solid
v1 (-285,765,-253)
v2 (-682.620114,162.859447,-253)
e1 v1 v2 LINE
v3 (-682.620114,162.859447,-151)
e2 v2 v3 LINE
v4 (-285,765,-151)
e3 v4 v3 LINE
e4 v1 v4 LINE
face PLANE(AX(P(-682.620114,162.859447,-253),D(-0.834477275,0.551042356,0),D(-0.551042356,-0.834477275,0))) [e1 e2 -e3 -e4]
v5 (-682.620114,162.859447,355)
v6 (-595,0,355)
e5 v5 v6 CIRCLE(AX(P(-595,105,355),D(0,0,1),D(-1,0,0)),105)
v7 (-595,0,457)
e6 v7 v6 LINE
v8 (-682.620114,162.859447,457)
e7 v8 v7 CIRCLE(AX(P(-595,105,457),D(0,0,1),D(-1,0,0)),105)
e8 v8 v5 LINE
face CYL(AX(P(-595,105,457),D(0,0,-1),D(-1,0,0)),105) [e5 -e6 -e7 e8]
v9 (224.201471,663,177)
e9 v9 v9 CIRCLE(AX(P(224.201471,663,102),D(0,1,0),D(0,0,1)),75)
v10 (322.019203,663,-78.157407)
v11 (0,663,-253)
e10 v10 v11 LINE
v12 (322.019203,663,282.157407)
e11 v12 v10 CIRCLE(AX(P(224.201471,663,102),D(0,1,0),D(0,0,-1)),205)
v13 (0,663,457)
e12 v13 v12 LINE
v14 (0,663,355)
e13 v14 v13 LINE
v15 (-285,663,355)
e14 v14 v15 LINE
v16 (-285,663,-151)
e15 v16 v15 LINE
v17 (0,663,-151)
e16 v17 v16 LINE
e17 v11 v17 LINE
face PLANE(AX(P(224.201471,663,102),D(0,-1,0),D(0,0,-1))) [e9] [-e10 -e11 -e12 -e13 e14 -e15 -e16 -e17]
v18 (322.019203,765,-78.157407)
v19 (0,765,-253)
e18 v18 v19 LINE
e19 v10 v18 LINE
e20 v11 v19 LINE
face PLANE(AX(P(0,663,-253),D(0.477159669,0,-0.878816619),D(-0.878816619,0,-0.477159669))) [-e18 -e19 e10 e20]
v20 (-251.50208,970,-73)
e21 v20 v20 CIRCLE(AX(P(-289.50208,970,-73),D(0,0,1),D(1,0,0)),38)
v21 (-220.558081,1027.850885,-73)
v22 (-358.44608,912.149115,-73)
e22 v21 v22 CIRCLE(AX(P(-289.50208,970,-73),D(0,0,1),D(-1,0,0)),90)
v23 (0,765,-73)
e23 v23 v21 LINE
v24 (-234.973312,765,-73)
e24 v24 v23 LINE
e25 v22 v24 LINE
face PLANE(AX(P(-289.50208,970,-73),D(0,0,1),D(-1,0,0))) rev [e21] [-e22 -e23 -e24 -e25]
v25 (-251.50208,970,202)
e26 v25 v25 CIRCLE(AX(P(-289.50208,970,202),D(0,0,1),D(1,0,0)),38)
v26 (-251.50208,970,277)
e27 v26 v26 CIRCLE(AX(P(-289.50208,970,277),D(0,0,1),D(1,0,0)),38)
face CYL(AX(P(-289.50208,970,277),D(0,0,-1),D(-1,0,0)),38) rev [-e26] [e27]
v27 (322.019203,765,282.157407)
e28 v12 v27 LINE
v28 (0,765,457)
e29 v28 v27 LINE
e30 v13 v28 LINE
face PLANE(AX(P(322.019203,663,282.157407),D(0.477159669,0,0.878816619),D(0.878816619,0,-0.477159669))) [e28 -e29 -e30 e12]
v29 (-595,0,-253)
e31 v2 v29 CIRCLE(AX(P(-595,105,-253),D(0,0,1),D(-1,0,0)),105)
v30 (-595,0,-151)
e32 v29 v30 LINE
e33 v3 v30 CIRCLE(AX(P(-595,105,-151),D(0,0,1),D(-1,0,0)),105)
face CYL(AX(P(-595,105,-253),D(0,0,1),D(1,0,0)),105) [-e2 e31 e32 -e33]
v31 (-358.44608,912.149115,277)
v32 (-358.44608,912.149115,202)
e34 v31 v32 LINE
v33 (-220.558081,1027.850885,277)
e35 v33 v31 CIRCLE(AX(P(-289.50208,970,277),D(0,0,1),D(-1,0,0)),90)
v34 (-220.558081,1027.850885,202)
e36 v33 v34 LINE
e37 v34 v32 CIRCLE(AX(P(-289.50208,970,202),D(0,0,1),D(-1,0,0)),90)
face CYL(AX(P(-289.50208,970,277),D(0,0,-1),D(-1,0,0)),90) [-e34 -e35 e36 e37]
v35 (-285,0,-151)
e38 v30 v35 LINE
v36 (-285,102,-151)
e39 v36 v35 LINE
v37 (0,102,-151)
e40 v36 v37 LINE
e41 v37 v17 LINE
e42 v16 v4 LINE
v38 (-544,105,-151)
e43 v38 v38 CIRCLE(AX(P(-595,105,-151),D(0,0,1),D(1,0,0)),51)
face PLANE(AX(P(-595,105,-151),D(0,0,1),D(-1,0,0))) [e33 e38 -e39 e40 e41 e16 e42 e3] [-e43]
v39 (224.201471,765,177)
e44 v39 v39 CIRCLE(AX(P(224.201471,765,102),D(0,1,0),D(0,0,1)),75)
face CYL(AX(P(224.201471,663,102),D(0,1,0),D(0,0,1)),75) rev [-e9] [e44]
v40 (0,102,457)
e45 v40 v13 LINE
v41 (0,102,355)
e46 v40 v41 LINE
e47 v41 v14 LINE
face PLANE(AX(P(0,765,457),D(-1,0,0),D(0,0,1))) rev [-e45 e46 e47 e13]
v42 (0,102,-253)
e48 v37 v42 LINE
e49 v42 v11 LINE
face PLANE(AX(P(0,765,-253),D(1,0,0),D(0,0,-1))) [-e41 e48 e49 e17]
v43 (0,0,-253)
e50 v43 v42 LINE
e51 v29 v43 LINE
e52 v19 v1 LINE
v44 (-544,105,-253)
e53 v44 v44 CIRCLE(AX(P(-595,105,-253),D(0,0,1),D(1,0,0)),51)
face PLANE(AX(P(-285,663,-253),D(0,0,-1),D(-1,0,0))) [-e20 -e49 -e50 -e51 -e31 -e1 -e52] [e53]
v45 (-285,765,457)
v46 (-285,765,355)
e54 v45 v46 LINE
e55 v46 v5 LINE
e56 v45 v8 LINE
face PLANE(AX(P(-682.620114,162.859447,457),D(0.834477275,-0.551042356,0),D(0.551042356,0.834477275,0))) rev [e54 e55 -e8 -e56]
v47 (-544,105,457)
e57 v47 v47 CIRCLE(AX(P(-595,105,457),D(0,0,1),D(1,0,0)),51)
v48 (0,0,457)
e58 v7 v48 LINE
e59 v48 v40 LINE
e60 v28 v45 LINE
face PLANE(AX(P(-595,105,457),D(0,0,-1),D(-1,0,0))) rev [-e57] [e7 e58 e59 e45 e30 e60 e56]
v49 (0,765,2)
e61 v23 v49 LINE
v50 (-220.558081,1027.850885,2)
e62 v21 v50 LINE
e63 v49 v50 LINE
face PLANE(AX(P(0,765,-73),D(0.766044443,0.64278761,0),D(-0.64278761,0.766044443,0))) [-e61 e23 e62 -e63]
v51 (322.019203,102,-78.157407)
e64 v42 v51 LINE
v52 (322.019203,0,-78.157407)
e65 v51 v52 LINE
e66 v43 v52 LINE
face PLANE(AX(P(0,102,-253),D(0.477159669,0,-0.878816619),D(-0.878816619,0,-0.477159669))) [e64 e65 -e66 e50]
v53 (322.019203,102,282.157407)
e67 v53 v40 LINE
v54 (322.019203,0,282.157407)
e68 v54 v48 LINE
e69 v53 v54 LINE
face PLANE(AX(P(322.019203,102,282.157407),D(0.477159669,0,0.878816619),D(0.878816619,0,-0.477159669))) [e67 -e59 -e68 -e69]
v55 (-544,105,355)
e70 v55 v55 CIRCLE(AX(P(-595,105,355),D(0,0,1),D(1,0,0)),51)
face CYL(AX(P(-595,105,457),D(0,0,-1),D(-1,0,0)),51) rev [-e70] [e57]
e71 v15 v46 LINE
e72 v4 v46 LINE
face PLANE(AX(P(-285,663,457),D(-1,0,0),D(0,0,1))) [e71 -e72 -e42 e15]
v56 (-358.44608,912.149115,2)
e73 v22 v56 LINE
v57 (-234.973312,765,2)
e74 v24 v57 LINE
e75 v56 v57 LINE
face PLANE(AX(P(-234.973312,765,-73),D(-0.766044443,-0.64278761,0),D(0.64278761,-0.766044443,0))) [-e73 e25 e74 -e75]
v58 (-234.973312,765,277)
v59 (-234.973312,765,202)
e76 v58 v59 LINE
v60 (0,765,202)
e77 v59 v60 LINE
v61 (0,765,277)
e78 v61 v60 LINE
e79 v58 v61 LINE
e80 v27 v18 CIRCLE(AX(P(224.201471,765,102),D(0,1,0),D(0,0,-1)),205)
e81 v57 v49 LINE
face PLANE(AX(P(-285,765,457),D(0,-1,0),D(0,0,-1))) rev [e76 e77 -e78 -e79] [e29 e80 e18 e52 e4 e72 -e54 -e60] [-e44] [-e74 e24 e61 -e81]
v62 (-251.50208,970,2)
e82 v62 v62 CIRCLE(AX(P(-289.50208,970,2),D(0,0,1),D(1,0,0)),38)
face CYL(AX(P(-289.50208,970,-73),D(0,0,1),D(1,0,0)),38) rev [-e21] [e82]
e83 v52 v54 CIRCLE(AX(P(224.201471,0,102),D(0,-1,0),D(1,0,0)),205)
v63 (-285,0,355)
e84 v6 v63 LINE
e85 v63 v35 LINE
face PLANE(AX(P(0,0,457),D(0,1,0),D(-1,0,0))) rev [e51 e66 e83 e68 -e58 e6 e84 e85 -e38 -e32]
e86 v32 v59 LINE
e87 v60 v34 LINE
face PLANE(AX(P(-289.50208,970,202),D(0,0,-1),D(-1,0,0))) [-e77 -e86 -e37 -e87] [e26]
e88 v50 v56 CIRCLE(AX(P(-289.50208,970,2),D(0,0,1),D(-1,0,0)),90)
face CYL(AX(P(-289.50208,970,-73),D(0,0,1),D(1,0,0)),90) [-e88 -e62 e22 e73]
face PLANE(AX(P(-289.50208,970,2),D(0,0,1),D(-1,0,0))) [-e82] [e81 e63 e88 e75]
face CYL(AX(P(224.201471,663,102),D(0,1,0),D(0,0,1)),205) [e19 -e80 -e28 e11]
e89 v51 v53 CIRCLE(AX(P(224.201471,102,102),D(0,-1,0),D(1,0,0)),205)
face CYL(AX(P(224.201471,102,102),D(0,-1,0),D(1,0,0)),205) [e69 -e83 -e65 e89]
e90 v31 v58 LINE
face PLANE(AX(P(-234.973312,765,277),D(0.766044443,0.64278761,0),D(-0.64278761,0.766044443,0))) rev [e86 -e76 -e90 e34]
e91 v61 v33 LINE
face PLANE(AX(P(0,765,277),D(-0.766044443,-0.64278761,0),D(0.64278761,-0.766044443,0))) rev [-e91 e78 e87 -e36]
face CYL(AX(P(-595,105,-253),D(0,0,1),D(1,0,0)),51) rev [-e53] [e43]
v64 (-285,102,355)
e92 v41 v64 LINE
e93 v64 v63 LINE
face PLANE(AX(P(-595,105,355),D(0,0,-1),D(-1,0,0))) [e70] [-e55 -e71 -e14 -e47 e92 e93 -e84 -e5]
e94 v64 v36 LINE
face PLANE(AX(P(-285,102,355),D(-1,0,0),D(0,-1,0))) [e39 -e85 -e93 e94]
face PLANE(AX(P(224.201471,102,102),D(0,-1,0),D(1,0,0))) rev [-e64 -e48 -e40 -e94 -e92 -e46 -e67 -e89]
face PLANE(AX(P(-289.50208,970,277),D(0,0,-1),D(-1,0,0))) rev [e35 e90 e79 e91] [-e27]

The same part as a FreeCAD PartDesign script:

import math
import FreeCAD as App
import Part
import Sketcher
from FreeCAD import Vector
Q = App.Units.Quantity

doc = App.newDocument("Part")
params = doc.addObject("Spreadsheet::Sheet", "Params")
for row, (alias, value) in enumerate([
    ("sketch1_diameter", "102 mm"),
    ("sketch1_radius", "105 mm"),
    ("sketch1_width", "285 mm"),
    ("sketch1_width2", "595 mm"),
    ("sketch1_height", "765 mm"),
    ("pad1_length", "102 mm"),
    ("sketch2_diameter", "150 mm"),
    ("sketch2_radius", "205 mm"),
    ("sketch2_width", "285 mm"),
    ("sketch2_height", "710 mm"),
    ("pad2_length", "102 mm"),
    ("sketch3_radius", "205 mm"),
    ("sketch3_width", "285 mm"),
    ("sketch3_height", "102 mm"),
    ("sketch3_height2", "506 mm"),
    ("pad3_length", "102 mm"),
    ("sketch4_diameter", "76 mm"),
    ("sketch4_radius", "90 mm"),
    ("pad4_length", "75 mm"),
], start=1):
    params.set(f"A{row}", alias)
    params.set(f"B{row}", "=" + value)
    params.setAlias(f"B{row}", alias)

body = doc.addObject("PartDesign::Body", "Body")

# Sketch on XY plane
sketch1 = body.newObject("Sketcher::SketchObject", "Sketch")
sketch1.AttachmentSupport = (doc.getObject("XY_Plane"), [""])
sketch1.MapMode = "FlatFace"
sketch1.AttachmentOffset = App.Placement(Vector(0, 0, 355), App.Rotation())
sketch1.addGeometry([
    Part.LineSegment(Vector(0, 765, 0), Vector(-285, 765, 0)),  # 0
    Part.LineSegment(Vector(-285, 765, 0), Vector(-682.620114, 162.859447, 0)),  # 1
    Part.ArcOfCircle(Part.Circle(Vector(-595, 105, 0), Vector(0, 0, 1), 105), math.radians(146.561448), math.radians(270)),  # 2
    Part.LineSegment(Vector(-595, 0, 0), Vector(0, 0, 0)),  # 3
    Part.LineSegment(Vector(0, 0, 0), Vector(0, 765, 0)),  # 4
    Part.Circle(Vector(-595, 105, 0), Vector(0, 0, 1), 51),  # 5
], False)
sketch1.addConstraint([
    Sketcher.Constraint("Coincident", 0, 2, 1, 1),
    Sketcher.Constraint("Tangent", 1, 2, 2, 1),
    Sketcher.Constraint("Tangent", 2, 2, 3, 1),
    Sketcher.Constraint("Coincident", 3, 2, 4, 1),
    Sketcher.Constraint("Coincident", 4, 2, 0, 1),
    Sketcher.Constraint("Horizontal", 0),
    Sketcher.Constraint("Horizontal", 3),
    Sketcher.Constraint("Vertical", 4),
    Sketcher.Constraint("Coincident", 3, 2, -1, 1),
    Sketcher.Constraint("Coincident", 5, 3, 2, 3),
    Sketcher.Constraint("Diameter", 5, Q("102 mm")),
    Sketcher.Constraint("Radius", 2, Q("105 mm")),
    Sketcher.Constraint("DistanceX", 0, 2, 0, 1, Q("285 mm")),
    Sketcher.Constraint("DistanceX", 3, 1, 3, 2, Q("595 mm")),
    Sketcher.Constraint("DistanceY", 4, 1, 4, 2, Q("765 mm")),
])
sketch1.setExpression("Constraints[10]", "Params.sketch1_diameter")
sketch1.setExpression("Constraints[11]", "Params.sketch1_radius")
sketch1.setExpression("Constraints[12]", "Params.sketch1_width")
sketch1.setExpression("Constraints[13]", "Params.sketch1_width2")
sketch1.setExpression("Constraints[14]", "Params.sketch1_height")
pad1 = body.newObject("PartDesign::Pad", "Pad")
pad1.Profile = sketch1
pad1.setExpression("Length", "Params.pad1_length")

# Sketch on XZ plane
sketch2 = body.newObject("Sketcher::SketchObject", "Sketch001")
sketch2.AttachmentSupport = (doc.getObject("XZ_Plane"), [""])
sketch2.MapMode = "FlatFace"
sketch2.AttachmentOffset = App.Placement(Vector(0, 0, -765), App.Rotation())
sketch2.addGeometry([
    Part.LineSegment(Vector(-285, 457, 0), Vector(0, 457, 0)),  # 0
    Part.LineSegment(Vector(0, 457, 0), Vector(322.019203, 282.157407, 0)),  # 1
    Part.ArcOfCircle(Part.Circle(Vector(224.201471, 102, 0), Vector(0, 0, 1), 205), math.radians(-61.499941), math.radians(61.499941)),  # 2
    Part.LineSegment(Vector(322.019203, -78.157407, 0), Vector(0, -253, 0)),  # 3
    Part.LineSegment(Vector(0, -253, 0), Vector(-285, -253, 0)),  # 4
    Part.LineSegment(Vector(-285, -253, 0), Vector(-285, 457, 0)),  # 5
    Part.Circle(Vector(224.201471, 102, 0), Vector(0, 0, 1), 75),  # 6
], False)
sketch2.addConstraint([
    Sketcher.Constraint("Coincident", 0, 2, 1, 1),
    Sketcher.Constraint("Tangent", 1, 2, 2, 2),
    Sketcher.Constraint("Tangent", 2, 1, 3, 1),
    Sketcher.Constraint("Coincident", 3, 2, 4, 1),
    Sketcher.Constraint("Coincident", 4, 2, 5, 1),
    Sketcher.Constraint("Coincident", 5, 2, 0, 1),
    Sketcher.Constraint("Horizontal", 0),
    Sketcher.Constraint("Horizontal", 4),
    Sketcher.Constraint("Vertical", 5),
    Sketcher.Constraint("Coincident", 6, 3, 2, 3),
    Sketcher.Constraint("PointOnObject", 0, 2, -2),
    Sketcher.Constraint("PointOnObject", 3, 2, -2),
    Sketcher.Constraint("Vertical", 1, 2, 2, 1),
    Sketcher.Constraint("Diameter", 6, Q("150 mm")),
    Sketcher.Constraint("Radius", 2, Q("205 mm")),
    Sketcher.Constraint("DistanceX", 0, 1, 0, 2, Q("285 mm")),
    Sketcher.Constraint("DistanceY", 5, 1, 5, 2, Q("710 mm")),
    Sketcher.Constraint("DistanceY", -1, 1, 2, 3, Q("102 mm")),
    Sketcher.Constraint("Distance", 1, Q("366.423661 mm")),
])
sketch2.setExpression("Constraints[13]", "Params.sketch2_diameter")
sketch2.setExpression("Constraints[14]", "Params.sketch2_radius")
sketch2.setExpression("Constraints[15]", "Params.sketch2_width")
sketch2.setExpression("Constraints[16]", "Params.sketch2_height")
pad2 = body.newObject("PartDesign::Pad", "Pad001")
pad2.Profile = sketch2
pad2.setExpression("Length", "Params.pad2_length")
doc.recompute()

datumplane = body.newObject("PartDesign::Plane", "DatumPlane")
datumplane.AttachmentSupport = (doc.getObject("XY_Plane"), [""])
datumplane.MapMode = "FlatFace"
datumplane.AttachmentOffset = App.Placement(Vector(0, 0, 102), App.Rotation())
mirrored = body.newObject("PartDesign::Mirrored", "Mirrored")
mirrored.Originals = [pad1]
mirrored.MirrorPlane = (datumplane, [""])
body.Tip = mirrored

# Sketch on XZ plane
sketch3 = body.newObject("Sketcher::SketchObject", "Sketch002")
sketch3.AttachmentSupport = (doc.getObject("XZ_Plane"), [""])
sketch3.MapMode = "FlatFace"
sketch3.addGeometry([
    Part.LineSegment(Vector(0, -151, 0), Vector(0, -253, 0)),  # 0
    Part.LineSegment(Vector(0, -253, 0), Vector(322.019203, -78.157407, 0)),  # 1
    Part.ArcOfCircle(Part.Circle(Vector(224.201471, 102, 0), Vector(0, 0, 1), 205), math.radians(-61.499941), math.radians(61.499941)),  # 2
    Part.LineSegment(Vector(322.019203, 282.157407, 0), Vector(0, 457, 0)),  # 3
    Part.LineSegment(Vector(0, 457, 0), Vector(0, 355, 0)),  # 4
    Part.LineSegment(Vector(0, 355, 0), Vector(-285, 355, 0)),  # 5
    Part.LineSegment(Vector(-285, 355, 0), Vector(-285, -151, 0)),  # 6
    Part.LineSegment(Vector(-285, -151, 0), Vector(0, -151, 0)),  # 7
], False)
sketch3.addConstraint([
    Sketcher.Constraint("Coincident", 0, 2, 1, 1),
    Sketcher.Constraint("Tangent", 1, 2, 2, 1),
    Sketcher.Constraint("Tangent", 2, 2, 3, 1),
    Sketcher.Constraint("Coincident", 3, 2, 4, 1),
    Sketcher.Constraint("Coincident", 4, 2, 5, 1),
    Sketcher.Constraint("Coincident", 5, 2, 6, 1),
    Sketcher.Constraint("Coincident", 6, 2, 7, 1),
    Sketcher.Constraint("Coincident", 7, 2, 0, 1),
    Sketcher.Constraint("Vertical", 0),
    Sketcher.Constraint("Vertical", 4),
    Sketcher.Constraint("Horizontal", 5),
    Sketcher.Constraint("Vertical", 6),
    Sketcher.Constraint("Horizontal", 7),
    Sketcher.Constraint("PointOnObject", 0, 2, -2),
    Sketcher.Constraint("PointOnObject", 3, 2, -2),
    Sketcher.Constraint("Vertical", 1, 2, 2, 2),
    Sketcher.Constraint("Equal", 0, 4),
    Sketcher.Constraint("Radius", 2, Q("205 mm")),
    Sketcher.Constraint("DistanceX", 5, 2, 5, 1, Q("285 mm")),
    Sketcher.Constraint("DistanceY", 0, 2, 0, 1, Q("102 mm")),
    Sketcher.Constraint("DistanceY", 6, 2, 6, 1, Q("506 mm")),
    Sketcher.Constraint("DistanceY", -1, 1, 2, 3, Q("102 mm")),
    Sketcher.Constraint("Distance", 1, Q("366.423661 mm")),
])
sketch3.setExpression("Constraints[17]", "Params.sketch3_radius")
sketch3.setExpression("Constraints[18]", "Params.sketch3_width")
sketch3.setExpression("Constraints[19]", "Params.sketch3_height")
sketch3.setExpression("Constraints[20]", "Params.sketch3_height2")
pad3 = body.newObject("PartDesign::Pad", "Pad002")
pad3.Profile = sketch3
pad3.setExpression("Length", "Params.pad3_length")
pad3.Reversed = True

# Sketch on XY plane
sketch4 = body.newObject("Sketcher::SketchObject", "Sketch003")
sketch4.AttachmentSupport = (doc.getObject("XY_Plane"), [""])
sketch4.MapMode = "FlatFace"
sketch4.AttachmentOffset = App.Placement(Vector(0, 0, 202), App.Rotation())
sketch4.addGeometry([
    Part.LineSegment(Vector(-234.973312, 765, 0), Vector(0, 765, 0)),  # 0
    Part.LineSegment(Vector(0, 765, 0), Vector(-220.558081, 1027.850885, 0)),  # 1
    Part.ArcOfCircle(Part.Circle(Vector(-289.50208, 970, 0), Vector(0, 0, 1), 90), math.radians(40), math.radians(220)),  # 2
    Part.LineSegment(Vector(-358.44608, 912.149115, 0), Vector(-234.973312, 765, 0)),  # 3
    Part.Circle(Vector(-289.50208, 970, 0), Vector(0, 0, 1), 38),  # 4
], False)
sketch4.addConstraint([
    Sketcher.Constraint("Coincident", 0, 2, 1, 1),
    Sketcher.Constraint("Tangent", 1, 2, 2, 1),
    Sketcher.Constraint("Tangent", 2, 2, 3, 1),
    Sketcher.Constraint("Coincident", 3, 2, 0, 1),
    Sketcher.Constraint("Horizontal", 0),
    Sketcher.Constraint("Coincident", 4, 3, 2, 3),
    Sketcher.Constraint("PointOnObject", 0, 2, -2),
    Sketcher.Constraint("Parallel", 1, 3),
    Sketcher.Constraint("Diameter", 4, Q("76 mm")),
    Sketcher.Constraint("Radius", 2, Q("90 mm")),
    Sketcher.Constraint("Angle", 1, Q("130 deg")),
    Sketcher.Constraint("DistanceY", -1, 1, 2, 3, Q("970 mm")),
    Sketcher.Constraint("DistanceY", -1, 1, 0, 2, Q("765 mm")),
])
sketch4.setExpression("Constraints[8]", "Params.sketch4_diameter")
sketch4.setExpression("Constraints[9]", "Params.sketch4_radius")
pad4 = body.newObject("PartDesign::Pad", "Pad003")
pad4.Profile = sketch4
pad4.setExpression("Length", "Params.pad4_length")
doc.recompute()

datumplane2 = body.newObject("PartDesign::Plane", "DatumPlane001")
datumplane2.AttachmentSupport = (doc.getObject("XY_Plane"), [""])
datumplane2.MapMode = "FlatFace"
datumplane2.AttachmentOffset = App.Placement(Vector(0, 0, 102), App.Rotation())
mirrored2 = body.newObject("PartDesign::Mirrored", "Mirrored001")
mirrored2.Originals = [pad4]
mirrored2.MirrorPlane = (datumplane2, [""])
body.Tip = mirrored2

doc.recompute()
